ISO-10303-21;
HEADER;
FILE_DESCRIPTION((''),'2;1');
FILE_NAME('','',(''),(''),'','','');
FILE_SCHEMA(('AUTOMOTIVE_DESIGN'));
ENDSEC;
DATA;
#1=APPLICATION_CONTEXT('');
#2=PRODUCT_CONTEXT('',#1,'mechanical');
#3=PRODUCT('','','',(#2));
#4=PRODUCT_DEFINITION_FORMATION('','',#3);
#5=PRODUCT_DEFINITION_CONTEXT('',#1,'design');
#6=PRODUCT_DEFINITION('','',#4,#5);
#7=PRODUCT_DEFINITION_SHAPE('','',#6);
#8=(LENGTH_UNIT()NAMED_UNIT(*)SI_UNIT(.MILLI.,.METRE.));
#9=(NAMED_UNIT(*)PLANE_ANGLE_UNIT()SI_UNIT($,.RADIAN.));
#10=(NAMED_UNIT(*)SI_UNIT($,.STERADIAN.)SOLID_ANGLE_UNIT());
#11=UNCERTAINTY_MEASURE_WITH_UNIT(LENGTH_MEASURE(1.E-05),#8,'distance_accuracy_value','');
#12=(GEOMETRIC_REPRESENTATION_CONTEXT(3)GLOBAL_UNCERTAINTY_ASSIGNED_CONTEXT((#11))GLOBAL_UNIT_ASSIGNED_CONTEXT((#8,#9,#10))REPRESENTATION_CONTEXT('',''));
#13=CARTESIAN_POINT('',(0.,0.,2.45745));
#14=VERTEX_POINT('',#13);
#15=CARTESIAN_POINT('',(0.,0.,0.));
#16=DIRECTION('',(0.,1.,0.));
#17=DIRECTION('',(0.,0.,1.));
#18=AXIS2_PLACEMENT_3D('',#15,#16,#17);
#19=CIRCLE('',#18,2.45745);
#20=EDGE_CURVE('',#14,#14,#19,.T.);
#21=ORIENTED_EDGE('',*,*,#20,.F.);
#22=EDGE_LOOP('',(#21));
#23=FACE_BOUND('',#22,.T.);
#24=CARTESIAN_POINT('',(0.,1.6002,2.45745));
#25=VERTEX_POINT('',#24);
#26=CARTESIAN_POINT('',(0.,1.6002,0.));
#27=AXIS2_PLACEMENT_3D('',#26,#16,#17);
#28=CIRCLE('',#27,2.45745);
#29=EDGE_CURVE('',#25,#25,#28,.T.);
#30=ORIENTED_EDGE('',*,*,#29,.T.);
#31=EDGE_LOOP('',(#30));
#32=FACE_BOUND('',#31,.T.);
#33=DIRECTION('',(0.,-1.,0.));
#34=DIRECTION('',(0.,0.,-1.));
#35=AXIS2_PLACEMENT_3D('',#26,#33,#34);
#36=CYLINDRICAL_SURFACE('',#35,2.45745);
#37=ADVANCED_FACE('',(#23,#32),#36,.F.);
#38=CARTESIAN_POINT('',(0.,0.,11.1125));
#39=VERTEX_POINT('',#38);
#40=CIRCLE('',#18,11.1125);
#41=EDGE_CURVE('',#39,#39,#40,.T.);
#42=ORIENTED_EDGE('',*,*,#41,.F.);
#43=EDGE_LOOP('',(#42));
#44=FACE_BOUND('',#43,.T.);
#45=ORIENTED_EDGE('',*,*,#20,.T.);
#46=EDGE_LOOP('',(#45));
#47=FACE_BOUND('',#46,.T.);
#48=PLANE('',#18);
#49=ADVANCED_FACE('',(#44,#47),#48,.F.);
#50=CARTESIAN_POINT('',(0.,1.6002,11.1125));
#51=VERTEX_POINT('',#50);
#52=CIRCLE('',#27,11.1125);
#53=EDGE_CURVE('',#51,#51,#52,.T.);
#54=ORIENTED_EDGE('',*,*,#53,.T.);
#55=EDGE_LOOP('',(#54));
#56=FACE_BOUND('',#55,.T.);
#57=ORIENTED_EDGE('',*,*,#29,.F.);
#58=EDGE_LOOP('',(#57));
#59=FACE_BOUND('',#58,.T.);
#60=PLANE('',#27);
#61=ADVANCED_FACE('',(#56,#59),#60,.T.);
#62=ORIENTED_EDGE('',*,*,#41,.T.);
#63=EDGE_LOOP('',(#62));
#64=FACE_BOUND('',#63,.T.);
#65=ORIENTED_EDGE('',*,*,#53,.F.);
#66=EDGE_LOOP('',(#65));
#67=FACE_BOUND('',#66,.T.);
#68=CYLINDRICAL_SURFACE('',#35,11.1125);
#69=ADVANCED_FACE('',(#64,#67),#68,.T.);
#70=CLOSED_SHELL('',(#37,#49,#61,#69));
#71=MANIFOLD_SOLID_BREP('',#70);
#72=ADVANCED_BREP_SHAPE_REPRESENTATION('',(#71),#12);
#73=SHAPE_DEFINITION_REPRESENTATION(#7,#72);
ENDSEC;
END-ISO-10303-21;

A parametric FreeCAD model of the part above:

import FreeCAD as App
import Part
import Sketcher
from FreeCAD import Vector
Q = App.Units.Quantity

doc = App.newDocument("Part")
params = doc.addObject("Spreadsheet::Sheet", "Params")
for row, (alias, value) in enumerate([
    ("sketch1_diameter", "0.875 in"),
    ("pad1_length", "0.063 in"),
], start=1):
    params.set(f"A{row}", alias)
    params.set(f"B{row}", "=" + value)
    params.setAlias(f"B{row}", alias)

body = doc.addObject("PartDesign::Body", "Body")

sketch1 = doc.addObject("Sketcher::SketchObject", "Sketch")
body.addObject(sketch1)
sketch1.AttachmentSupport = (doc.XZ_Plane, [""])
sketch1.MapMode = "FlatFace"
sketch1.addGeometry([
    Part.Circle(Vector(0, 0, 0), Vector(0, 0, 1), 11.1),
    Part.Circle(Vector(0, 0, 0), Vector(0, 0, 1), 2.5),
], False)
sketch1.addConstraint([
    Sketcher.Constraint("Coincident", 0, 3, -1, 1),
    Sketcher.Constraint("Coincident", 1, 3, -1, 1),
    Sketcher.Constraint("Diameter", 0, Q("0.875 in")),
    Sketcher.Constraint("Diameter", 1, Q("0.1935 in")),
])
sketch1.setExpression("Constraints[2]", "Params.sketch1_diameter")
pad1 = doc.addObject("PartDesign::Pad", "Pad")
body.addObject(pad1)
pad1.Profile = sketch1
pad1.setExpression("Length", "Params.pad1_length")
pad1.Reversed = True

doc.recompute()
